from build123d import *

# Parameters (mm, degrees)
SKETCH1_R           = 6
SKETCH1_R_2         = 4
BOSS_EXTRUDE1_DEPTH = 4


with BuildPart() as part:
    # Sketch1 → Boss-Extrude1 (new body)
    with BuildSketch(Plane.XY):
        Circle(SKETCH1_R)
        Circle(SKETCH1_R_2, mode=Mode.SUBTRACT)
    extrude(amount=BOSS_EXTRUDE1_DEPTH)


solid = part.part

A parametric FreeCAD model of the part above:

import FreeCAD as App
import Part
import Sketcher
Q = App.Units.Quantity

doc = App.newDocument("Part")
params = doc.addObject("Spreadsheet::Sheet", "Params")
for row, (alias, value) in enumerate([
    ("sketch1_diameter", "12 mm"),
    ("sketch1_diameter2", "8 mm"),
    ("pad1_length", "4 mm"),
], start=1):
    params.set(f"A{row}", alias)
    params.set(f"B{row}", "=" + value)
    params.setAlias(f"B{row}", alias)

body = doc.addObject("PartDesign::Body", "Body")

# Sketch on XY plane
sketch1 = body.newObject("Sketcher::SketchObject", "Sketch")
sketch1.AttachmentSupport = (doc.getObject("XY_Plane"), [""])
sketch1.MapMode = "FlatFace"
sketch1.addGeometry([
    Part.Circle(App.Vector(0, 0, 0), App.Vector(0, 0, 1), 6),
    Part.Circle(App.Vector(0, 0, 0), App.Vector(0, 0, 1), 4),
], False)
sketch1.addConstraint([
    Sketcher.Constraint("Coincident", 0, 3, -1, 1),
    Sketcher.Constraint("Coincident", 1, 3, -1, 1),
    Sketcher.Constraint("Diameter", 0, Q("12 mm")),
    Sketcher.Constraint("Diameter", 1, Q("8 mm")),
])
sketch1.setExpression("Constraints[2]", "Params.sketch1_diameter")
sketch1.setExpression("Constraints[3]", "Params.sketch1_diameter2")
pad1 = body.newObject("PartDesign::Pad", "Pad")
pad1.Profile = sketch1
pad1.setExpression("Length", "Params.pad1_length")

doc.recompute()
